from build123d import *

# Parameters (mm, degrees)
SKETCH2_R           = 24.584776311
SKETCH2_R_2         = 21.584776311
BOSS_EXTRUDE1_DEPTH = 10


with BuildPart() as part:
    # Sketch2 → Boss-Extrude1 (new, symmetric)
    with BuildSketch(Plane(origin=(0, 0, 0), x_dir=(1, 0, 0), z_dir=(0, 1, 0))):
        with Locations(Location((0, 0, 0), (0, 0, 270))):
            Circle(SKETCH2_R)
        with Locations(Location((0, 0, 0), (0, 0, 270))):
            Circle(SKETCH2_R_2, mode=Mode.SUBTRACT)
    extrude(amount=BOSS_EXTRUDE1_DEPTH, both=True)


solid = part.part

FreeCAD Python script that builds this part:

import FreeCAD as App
import Part
import Sketcher
from FreeCAD import Vector
Q = App.Units.Quantity

doc = App.newDocument("Part")
body = doc.addObject("PartDesign::Body", "Body")

# Sketch on XZ plane
sketch1 = body.newObject("Sketcher::SketchObject", "Sketch")
sketch1.AttachmentSupport = (doc.getObject("XZ_Plane"), [""])
sketch1.MapMode = "FlatFace"
sketch1.addGeometry(Part.Circle(Vector(0, 0, 0), Vector(0, 0, 1), 24.584776), False)
sketch1.addGeometry(Part.Circle(Vector(0, 0, 0), Vector(0, 0, 1), 21.584776), False)
sketch1.addConstraint(Sketcher.Constraint("Coincident", 0, 3, -1, 1))
sketch1.addConstraint(Sketcher.Constraint("Coincident", 1, 3, -1, 1))
sketch1.addConstraint(Sketcher.Constraint("Diameter", 0, Q("49.169553 mm")))
sketch1.addConstraint(Sketcher.Constraint("Diameter", 1, Q("43.169553 mm")))
pad1 = body.newObject("PartDesign::Pad", "Pad")
pad1.Profile = sketch1
pad1.Length = 20
pad1.Midplane = True

doc.recompute()
